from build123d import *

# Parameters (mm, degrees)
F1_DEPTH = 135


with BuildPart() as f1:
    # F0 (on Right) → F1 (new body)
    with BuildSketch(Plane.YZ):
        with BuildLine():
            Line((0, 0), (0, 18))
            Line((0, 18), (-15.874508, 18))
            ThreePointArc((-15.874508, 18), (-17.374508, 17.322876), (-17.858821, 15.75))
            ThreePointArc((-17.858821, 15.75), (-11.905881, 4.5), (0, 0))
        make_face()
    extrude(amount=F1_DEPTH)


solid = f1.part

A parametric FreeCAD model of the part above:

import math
import FreeCAD as App
import Part
import Sketcher

V = App.Vector

doc = App.newDocument("Part")
body = doc.addObject("PartDesign::Body", "Body")

sketch1 = body.newObject("Sketcher::SketchObject", "Sketch")
sketch1.AttachmentSupport = (doc.getObject("YZ_Plane"), [""])
sketch1.MapMode = "FlatFace"
sketch1.addGeometry([
    Part.LineSegment(V(0, 0, 0), V(0, 18, 0)),
    Part.LineSegment(V(0, 18, 0), V(-15.9, 18, 0)),
    Part.ArcOfCircle(Part.Circle(V(-15.9, 16, 0), V(0, 0, 1), 2), math.radians(90), math.radians(187)),
    Part.ArcOfCircle(Part.Circle(V(0, 18, 0), V(0, 0, 1), 18), math.radians(-173), math.radians(-90)),
], False)
sketch1.addConstraint([
    Sketcher.Constraint("Coincident", 0, 2, 1, 1),
    Sketcher.Constraint("Tangent", 1, 2, 2, 1),
    Sketcher.Constraint("Tangent", 2, 2, 3, 1),
    Sketcher.Constraint("Coincident", 3, 2, 0, 1),
    Sketcher.Constraint("Vertical", 0),
    Sketcher.Constraint("Horizontal", 1),
    Sketcher.Constraint("Coincident", 3, 2, -1, 1),
    Sketcher.Constraint("Coincident", 0, 2, 3, 3),
    Sketcher.Constraint("Radius", 2, 1.999999),
    Sketcher.Constraint("Radius", 3, 17.999999),
])
pad1 = body.newObject("PartDesign::Pad", "Pad")
pad1.Profile = sketch1
pad1.Length = 135

doc.recompute()
